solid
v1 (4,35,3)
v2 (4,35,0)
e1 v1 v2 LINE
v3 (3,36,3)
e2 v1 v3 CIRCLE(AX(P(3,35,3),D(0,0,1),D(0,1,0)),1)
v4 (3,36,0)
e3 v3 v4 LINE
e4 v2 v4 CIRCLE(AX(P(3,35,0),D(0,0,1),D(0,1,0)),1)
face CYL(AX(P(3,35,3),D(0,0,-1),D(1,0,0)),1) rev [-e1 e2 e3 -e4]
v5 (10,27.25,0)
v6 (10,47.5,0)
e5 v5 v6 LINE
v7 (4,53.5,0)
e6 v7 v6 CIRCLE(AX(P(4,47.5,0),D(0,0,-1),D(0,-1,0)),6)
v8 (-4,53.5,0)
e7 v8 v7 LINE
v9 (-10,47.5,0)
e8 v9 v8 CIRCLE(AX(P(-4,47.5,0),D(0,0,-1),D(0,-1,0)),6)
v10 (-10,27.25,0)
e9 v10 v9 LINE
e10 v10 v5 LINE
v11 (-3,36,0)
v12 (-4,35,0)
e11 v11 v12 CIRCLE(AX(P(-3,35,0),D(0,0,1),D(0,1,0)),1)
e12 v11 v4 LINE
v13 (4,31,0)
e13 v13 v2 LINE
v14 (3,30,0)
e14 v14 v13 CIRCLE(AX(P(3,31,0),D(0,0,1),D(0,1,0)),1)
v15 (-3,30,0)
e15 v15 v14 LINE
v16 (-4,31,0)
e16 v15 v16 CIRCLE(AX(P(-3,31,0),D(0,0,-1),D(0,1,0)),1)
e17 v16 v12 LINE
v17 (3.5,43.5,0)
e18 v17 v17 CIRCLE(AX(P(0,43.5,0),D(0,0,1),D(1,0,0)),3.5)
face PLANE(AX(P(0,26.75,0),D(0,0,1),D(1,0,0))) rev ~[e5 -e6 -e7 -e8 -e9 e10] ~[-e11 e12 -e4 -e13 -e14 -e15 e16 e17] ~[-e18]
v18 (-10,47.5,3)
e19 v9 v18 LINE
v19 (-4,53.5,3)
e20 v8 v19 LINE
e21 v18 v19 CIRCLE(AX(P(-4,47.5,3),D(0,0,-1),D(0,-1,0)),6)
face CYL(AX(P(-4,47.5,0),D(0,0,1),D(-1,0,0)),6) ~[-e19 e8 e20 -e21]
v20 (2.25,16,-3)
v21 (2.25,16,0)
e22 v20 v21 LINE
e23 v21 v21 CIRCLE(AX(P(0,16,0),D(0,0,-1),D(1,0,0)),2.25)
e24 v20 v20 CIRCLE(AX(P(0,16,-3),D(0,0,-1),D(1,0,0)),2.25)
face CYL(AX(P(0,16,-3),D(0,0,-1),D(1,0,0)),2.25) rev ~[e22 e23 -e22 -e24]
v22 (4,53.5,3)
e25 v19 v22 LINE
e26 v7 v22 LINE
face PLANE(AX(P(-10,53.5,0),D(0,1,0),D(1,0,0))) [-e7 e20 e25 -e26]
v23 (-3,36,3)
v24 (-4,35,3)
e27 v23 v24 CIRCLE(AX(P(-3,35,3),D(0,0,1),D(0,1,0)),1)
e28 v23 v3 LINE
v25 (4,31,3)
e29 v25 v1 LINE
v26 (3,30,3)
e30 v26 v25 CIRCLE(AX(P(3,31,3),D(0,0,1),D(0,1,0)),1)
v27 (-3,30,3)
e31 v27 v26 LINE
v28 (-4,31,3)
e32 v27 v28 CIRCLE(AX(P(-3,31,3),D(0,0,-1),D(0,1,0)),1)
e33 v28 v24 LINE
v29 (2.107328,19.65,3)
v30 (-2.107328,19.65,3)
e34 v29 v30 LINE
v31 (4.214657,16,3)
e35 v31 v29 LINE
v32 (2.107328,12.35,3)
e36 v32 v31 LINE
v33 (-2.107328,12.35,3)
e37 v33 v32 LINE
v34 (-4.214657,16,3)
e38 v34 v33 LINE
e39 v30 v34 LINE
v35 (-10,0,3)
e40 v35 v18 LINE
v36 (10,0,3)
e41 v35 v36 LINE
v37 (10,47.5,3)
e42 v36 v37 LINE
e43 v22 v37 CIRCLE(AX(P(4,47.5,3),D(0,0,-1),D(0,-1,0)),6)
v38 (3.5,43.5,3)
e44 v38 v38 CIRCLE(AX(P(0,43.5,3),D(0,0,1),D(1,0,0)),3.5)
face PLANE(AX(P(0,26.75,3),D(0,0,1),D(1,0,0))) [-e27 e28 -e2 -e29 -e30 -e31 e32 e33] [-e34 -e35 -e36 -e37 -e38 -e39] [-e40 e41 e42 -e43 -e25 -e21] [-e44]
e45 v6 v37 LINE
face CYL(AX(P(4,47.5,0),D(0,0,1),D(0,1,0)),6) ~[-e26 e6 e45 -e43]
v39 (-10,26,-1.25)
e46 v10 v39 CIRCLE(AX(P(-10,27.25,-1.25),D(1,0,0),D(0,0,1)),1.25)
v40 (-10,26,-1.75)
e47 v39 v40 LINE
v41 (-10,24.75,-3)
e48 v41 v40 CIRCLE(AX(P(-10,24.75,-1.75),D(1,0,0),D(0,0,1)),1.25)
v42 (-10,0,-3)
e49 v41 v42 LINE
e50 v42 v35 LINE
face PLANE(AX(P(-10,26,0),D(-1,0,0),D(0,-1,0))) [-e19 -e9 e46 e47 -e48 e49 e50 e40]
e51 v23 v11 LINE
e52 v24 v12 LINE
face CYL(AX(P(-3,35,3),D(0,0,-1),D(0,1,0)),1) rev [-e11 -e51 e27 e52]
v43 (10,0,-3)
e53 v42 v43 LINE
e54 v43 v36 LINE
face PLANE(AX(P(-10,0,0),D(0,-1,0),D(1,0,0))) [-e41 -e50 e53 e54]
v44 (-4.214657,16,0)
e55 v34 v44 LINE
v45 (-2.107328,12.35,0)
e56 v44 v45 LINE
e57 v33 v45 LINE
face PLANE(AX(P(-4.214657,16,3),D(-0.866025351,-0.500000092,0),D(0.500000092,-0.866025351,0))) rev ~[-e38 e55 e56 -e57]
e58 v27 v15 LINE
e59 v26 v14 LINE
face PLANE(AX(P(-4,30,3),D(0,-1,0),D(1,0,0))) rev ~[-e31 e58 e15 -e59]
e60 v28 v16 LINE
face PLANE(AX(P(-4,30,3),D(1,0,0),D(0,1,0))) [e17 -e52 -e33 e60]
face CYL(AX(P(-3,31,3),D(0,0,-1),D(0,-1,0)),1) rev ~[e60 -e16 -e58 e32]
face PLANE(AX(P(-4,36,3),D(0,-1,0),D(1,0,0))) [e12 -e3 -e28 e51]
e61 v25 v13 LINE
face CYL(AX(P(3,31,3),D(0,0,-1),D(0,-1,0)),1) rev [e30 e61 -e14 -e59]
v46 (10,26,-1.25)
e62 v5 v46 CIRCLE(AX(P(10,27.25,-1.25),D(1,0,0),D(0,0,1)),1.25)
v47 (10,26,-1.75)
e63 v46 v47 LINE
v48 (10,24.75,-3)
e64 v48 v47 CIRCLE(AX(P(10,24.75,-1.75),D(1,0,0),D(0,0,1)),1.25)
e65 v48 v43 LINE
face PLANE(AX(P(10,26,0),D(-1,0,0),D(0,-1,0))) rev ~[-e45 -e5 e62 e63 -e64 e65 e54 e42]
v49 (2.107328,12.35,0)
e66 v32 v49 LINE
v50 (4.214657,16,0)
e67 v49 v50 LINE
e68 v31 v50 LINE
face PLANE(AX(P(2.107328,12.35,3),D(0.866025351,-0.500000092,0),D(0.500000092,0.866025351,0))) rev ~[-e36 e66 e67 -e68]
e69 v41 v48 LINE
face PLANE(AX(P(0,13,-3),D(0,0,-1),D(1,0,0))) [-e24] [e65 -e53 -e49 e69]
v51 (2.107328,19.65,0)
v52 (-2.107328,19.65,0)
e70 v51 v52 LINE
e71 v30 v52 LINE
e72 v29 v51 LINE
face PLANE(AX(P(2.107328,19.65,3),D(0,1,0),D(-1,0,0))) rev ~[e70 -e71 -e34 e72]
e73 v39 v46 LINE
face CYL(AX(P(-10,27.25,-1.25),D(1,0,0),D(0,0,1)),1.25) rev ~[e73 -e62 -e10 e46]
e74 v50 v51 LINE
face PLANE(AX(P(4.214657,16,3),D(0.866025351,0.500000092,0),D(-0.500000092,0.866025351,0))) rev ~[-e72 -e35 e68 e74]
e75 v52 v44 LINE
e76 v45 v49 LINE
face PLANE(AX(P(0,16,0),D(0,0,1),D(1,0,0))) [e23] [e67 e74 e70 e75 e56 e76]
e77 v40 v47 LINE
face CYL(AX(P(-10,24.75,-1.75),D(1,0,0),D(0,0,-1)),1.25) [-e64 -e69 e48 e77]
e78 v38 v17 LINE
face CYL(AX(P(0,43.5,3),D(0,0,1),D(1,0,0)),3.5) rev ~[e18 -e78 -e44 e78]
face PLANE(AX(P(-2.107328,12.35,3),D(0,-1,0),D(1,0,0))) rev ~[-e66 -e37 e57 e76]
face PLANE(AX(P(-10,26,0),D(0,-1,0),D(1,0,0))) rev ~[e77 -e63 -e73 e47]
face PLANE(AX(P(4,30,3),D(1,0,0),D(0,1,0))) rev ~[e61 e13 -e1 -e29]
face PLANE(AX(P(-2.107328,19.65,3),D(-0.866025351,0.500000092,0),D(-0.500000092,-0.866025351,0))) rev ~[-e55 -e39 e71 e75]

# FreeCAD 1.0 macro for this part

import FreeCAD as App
import Part
import Sketcher
from FreeCAD import Vector
Q = App.Units.Quantity


def edges_at(feature, points):
    """Names of the edges that pass closest to the given points."""
    edges = feature.Shape.Edges
    near = lambda p: min(range(len(edges)), key=lambda i: edges[i].distToShape(Part.Vertex(*p))[0])
    return sorted({f"Edge{near(p) + 1}" for p in points})


def add_polygon(sketch, points):
    """Adds a closed chain of lines whose ends are joined by coincident constraints."""
    first, n = sketch.GeometryCount, len(points)
    for a, b in zip(points, points[1:] + points[:1]):
        sketch.addGeometry(Part.LineSegment(App.Vector(*a, 0), App.Vector(*b, 0)), False)
    for i in range(n):
        sketch.addConstraint(Sketcher.Constraint("Coincident", first + i, 2, first + (i + 1) % n, 1))

doc = App.newDocument("Part")
params = doc.addObject("Spreadsheet::Sheet", "Params")
for row, (alias, value) in enumerate([
    ("sketch1_width", "20 mm"),
    ("sketch1_height", "53.5 mm"),
    ("pad1_length", "3 mm"),
    ("sketch2_width", "20 mm"),
    ("sketch2_height", "26 mm"),
    ("pad2_length", "3 mm"),
    ("fillet_radius", "1.25 mm"),
    ("fillet2_radius", "6 mm"),
    ("sketch3_diameter", "4.5 mm"),
    ("pocket1_length", "6 mm"),
    ("sketch4_diameter", "7 mm"),
    ("sketch4_width", "8 mm"),
    ("sketch4_height", "6 mm"),
    ("pocket2_length", "6 mm"),
    ("fillet3_radius", "1 mm"),
    ("pocket3_length", "3 mm"),
], start=1):
    params.set(f"A{row}", alias)
    params.set(f"B{row}", "=" + value)
    params.setAlias(f"B{row}", alias)

body = doc.addObject("PartDesign::Body", "Body")

# Sketch on XY plane
sketch1 = body.newObject("Sketcher::SketchObject", "Sketch")
sketch1.AttachmentSupport = (doc.getObject("XY_Plane"), [""])
sketch1.MapMode = "FlatFace"
add_polygon(sketch1, [(-10, 54), (-10, 0), (10, 0), (10, 54)])  # lines 0-3
sketch1.addConstraint([
    Sketcher.Constraint("Vertical", 0),
    Sketcher.Constraint("Horizontal", 1),
    Sketcher.Constraint("Vertical", 2),
    Sketcher.Constraint("Horizontal", 3),
    Sketcher.Constraint("Symmetric", 0, 2, 1, 2, -1, 1),
    Sketcher.Constraint("DistanceX", 1, 1, 1, 2, Q("20 mm")),
    Sketcher.Constraint("DistanceY", 0, 2, 0, 1, Q("53.5 mm")),
])
sketch1.setExpression("Constraints[9]", "Params.sketch1_width")
sketch1.setExpression("Constraints[10]", "Params.sketch1_height")
pad1 = body.newObject("PartDesign::Pad", "Pad")
pad1.Profile = sketch1
pad1.setExpression("Length", "Params.pad1_length")

# Sketch on XY plane
sketch2 = body.newObject("Sketcher::SketchObject", "Sketch001")
sketch2.AttachmentSupport = (doc.getObject("XY_Plane"), [""])
sketch2.MapMode = "FlatFace"
add_polygon(sketch2, [(-10, 0), (-10, 26), (10, 26), (10, 0)])  # lines 0-3
sketch2.addConstraint([
    Sketcher.Constraint("Vertical", 0),
    Sketcher.Constraint("Horizontal", 1),
    Sketcher.Constraint("Vertical", 2),
    Sketcher.Constraint("Horizontal", 3),
    Sketcher.Constraint("Symmetric", 2, 2, 3, 2, -1, 1),
    Sketcher.Constraint("DistanceX", 1, 1, 1, 2, Q("20 mm")),
    Sketcher.Constraint("DistanceY", 0, 1, 0, 2, Q("26 mm")),
])
sketch2.setExpression("Constraints[9]", "Params.sketch2_width")
sketch2.setExpression("Constraints[10]", "Params.sketch2_height")
pad2 = body.newObject("PartDesign::Pad", "Pad001")
pad2.Profile = sketch2
pad2.setExpression("Length", "Params.pad2_length")
pad2.Reversed = True
doc.recompute()

fillet = body.newObject("PartDesign::Fillet", "Fillet")
fillet.Base = (pad2, edges_at(pad2, [(0, 26, 0), (0, 26, -3)]))
fillet.setExpression("Radius", "Params.fillet_radius")
doc.recompute()

fillet2 = body.newObject("PartDesign::Fillet", "Fillet001")
fillet2.Base = (fillet, edges_at(fillet, [(10, 53.5, 1.5), (-10, 53.5, 1.5)]))
fillet2.setExpression("Radius", "Params.fillet2_radius")

# Sketch on XY plane
sketch3 = body.newObject("Sketcher::SketchObject", "Sketch002")
sketch3.AttachmentSupport = (doc.getObject("XY_Plane"), [""])
sketch3.MapMode = "FlatFace"
sketch3.AttachmentOffset = App.Placement(Vector(0, 0, -3), App.Rotation())
sketch3.addGeometry(Part.Circle(Vector(0, 16, 0), Vector(0, 0, 1), 2.2), False)
sketch3.addConstraint([
    Sketcher.Constraint("PointOnObject", 0, 3, -2),
    Sketcher.Constraint("Diameter", 0, Q("4.5 mm")),
    Sketcher.Constraint("DistanceY", -1, 1, 0, 3, Q("16 mm")),
])
sketch3.setExpression("Constraints[1]", "Params.sketch3_diameter")
pocket1 = body.newObject("PartDesign::Pocket", "Pocket")
pocket1.Profile = sketch3
pocket1.setExpression("Length", "Params.pocket1_length")
pocket1.Reversed = True

# Sketch on XY plane
sketch4 = body.newObject("Sketcher::SketchObject", "Sketch003")
sketch4.AttachmentSupport = (doc.getObject("XY_Plane"), [""])
sketch4.MapMode = "FlatFace"
sketch4.AttachmentOffset = App.Placement(Vector(0, 0, 3), App.Rotation())
sketch4.addGeometry(Part.Circle(Vector(0, 43.5, 0), Vector(0, 0, 1), 3.5), False)  # 0
add_polygon(sketch4, [(-4, 36), (-4, 30), (4, 30), (4, 36)])  # lines 1-4
sketch4.addConstraint([
    Sketcher.Constraint("Vertical", 1),
    Sketcher.Constraint("Horizontal", 2),
    Sketcher.Constraint("Vertical", 3),
    Sketcher.Constraint("Horizontal", 4),
    Sketcher.Constraint("PointOnObject", 0, 3, -2),
    Sketcher.Constraint("Diameter", 0, Q("7 mm")),
    Sketcher.Constraint("DistanceX", 2, 1, 2, 2, Q("8 mm")),
    Sketcher.Constraint("DistanceY", 1, 2, 1, 1, Q("6 mm")),
    Sketcher.Constraint("DistanceX", 1, 2, -1, 1, Q("4 mm")),
    Sketcher.Constraint("DistanceY", -1, 1, 1, 2, Q("30 mm")),
    Sketcher.Constraint("DistanceY", -1, 1, 0, 3, Q("43.5 mm")),
])
sketch4.setExpression("Constraints[9]", "Params.sketch4_diameter")
sketch4.setExpression("Constraints[10]", "Params.sketch4_width")
sketch4.setExpression("Constraints[11]", "Params.sketch4_height")
pocket2 = body.newObject("PartDesign::Pocket", "Pocket001")
pocket2.Profile = sketch4
pocket2.setExpression("Length", "Params.pocket2_length")
doc.recompute()

fillet3 = body.newObject("PartDesign::Fillet", "Fillet002")
fillet3.Base = (pocket2, edges_at(pocket2, [
    (-4, 36, 1.5),
    (4, 36, 1.5),
    (4, 30, 1.5),
    (-4, 30, 1.5),
]))
fillet3.setExpression("Radius", "Params.fillet3_radius")

# Sketch on XY plane
sketch5 = body.newObject("Sketcher::SketchObject", "Sketch004")
sketch5.AttachmentSupport = (doc.getObject("XY_Plane"), [""])
sketch5.MapMode = "FlatFace"
sketch5.AttachmentOffset = App.Placement(Vector(0, 0, 3), App.Rotation())
add_polygon(sketch5, [(2.1, 19.6), (-2.1, 19.6), (-4.2, 16), (-2.1, 12.3), (2.1, 12.3), (4.2, 16)])  # lines 0-5
sketch5.addConstraint([
    Sketcher.Constraint("Horizontal", 0),
    Sketcher.Constraint("Horizontal", 3),
    Sketcher.Constraint("Symmetric", 1, 2, 4, 2, -2),
    Sketcher.Constraint("Parallel", 1, 4),
    Sketcher.Constraint("Parallel", 2, 5),
    Sketcher.Constraint("Vertical", 0, 2, 2, 2),
    Sketcher.Constraint("Vertical", 3, 2, 5, 2),
    Sketcher.Constraint("Angle", 1, Q("-120.000006 deg")),
    Sketcher.Constraint("DistanceY", -1, 1, 1, 2, Q("16 mm")),
    Sketcher.Constraint("DistanceY", 2, 2, 0, 2, Q("7.3 mm")),
    Sketcher.Constraint("DistanceX", 0, 2, 0, 1, Q("4.214656 mm")),
])
pocket3 = body.newObject("PartDesign::Pocket", "Pocket002")
pocket3.Profile = sketch5
pocket3.setExpression("Length", "Params.pocket3_length")

doc.recompute()
